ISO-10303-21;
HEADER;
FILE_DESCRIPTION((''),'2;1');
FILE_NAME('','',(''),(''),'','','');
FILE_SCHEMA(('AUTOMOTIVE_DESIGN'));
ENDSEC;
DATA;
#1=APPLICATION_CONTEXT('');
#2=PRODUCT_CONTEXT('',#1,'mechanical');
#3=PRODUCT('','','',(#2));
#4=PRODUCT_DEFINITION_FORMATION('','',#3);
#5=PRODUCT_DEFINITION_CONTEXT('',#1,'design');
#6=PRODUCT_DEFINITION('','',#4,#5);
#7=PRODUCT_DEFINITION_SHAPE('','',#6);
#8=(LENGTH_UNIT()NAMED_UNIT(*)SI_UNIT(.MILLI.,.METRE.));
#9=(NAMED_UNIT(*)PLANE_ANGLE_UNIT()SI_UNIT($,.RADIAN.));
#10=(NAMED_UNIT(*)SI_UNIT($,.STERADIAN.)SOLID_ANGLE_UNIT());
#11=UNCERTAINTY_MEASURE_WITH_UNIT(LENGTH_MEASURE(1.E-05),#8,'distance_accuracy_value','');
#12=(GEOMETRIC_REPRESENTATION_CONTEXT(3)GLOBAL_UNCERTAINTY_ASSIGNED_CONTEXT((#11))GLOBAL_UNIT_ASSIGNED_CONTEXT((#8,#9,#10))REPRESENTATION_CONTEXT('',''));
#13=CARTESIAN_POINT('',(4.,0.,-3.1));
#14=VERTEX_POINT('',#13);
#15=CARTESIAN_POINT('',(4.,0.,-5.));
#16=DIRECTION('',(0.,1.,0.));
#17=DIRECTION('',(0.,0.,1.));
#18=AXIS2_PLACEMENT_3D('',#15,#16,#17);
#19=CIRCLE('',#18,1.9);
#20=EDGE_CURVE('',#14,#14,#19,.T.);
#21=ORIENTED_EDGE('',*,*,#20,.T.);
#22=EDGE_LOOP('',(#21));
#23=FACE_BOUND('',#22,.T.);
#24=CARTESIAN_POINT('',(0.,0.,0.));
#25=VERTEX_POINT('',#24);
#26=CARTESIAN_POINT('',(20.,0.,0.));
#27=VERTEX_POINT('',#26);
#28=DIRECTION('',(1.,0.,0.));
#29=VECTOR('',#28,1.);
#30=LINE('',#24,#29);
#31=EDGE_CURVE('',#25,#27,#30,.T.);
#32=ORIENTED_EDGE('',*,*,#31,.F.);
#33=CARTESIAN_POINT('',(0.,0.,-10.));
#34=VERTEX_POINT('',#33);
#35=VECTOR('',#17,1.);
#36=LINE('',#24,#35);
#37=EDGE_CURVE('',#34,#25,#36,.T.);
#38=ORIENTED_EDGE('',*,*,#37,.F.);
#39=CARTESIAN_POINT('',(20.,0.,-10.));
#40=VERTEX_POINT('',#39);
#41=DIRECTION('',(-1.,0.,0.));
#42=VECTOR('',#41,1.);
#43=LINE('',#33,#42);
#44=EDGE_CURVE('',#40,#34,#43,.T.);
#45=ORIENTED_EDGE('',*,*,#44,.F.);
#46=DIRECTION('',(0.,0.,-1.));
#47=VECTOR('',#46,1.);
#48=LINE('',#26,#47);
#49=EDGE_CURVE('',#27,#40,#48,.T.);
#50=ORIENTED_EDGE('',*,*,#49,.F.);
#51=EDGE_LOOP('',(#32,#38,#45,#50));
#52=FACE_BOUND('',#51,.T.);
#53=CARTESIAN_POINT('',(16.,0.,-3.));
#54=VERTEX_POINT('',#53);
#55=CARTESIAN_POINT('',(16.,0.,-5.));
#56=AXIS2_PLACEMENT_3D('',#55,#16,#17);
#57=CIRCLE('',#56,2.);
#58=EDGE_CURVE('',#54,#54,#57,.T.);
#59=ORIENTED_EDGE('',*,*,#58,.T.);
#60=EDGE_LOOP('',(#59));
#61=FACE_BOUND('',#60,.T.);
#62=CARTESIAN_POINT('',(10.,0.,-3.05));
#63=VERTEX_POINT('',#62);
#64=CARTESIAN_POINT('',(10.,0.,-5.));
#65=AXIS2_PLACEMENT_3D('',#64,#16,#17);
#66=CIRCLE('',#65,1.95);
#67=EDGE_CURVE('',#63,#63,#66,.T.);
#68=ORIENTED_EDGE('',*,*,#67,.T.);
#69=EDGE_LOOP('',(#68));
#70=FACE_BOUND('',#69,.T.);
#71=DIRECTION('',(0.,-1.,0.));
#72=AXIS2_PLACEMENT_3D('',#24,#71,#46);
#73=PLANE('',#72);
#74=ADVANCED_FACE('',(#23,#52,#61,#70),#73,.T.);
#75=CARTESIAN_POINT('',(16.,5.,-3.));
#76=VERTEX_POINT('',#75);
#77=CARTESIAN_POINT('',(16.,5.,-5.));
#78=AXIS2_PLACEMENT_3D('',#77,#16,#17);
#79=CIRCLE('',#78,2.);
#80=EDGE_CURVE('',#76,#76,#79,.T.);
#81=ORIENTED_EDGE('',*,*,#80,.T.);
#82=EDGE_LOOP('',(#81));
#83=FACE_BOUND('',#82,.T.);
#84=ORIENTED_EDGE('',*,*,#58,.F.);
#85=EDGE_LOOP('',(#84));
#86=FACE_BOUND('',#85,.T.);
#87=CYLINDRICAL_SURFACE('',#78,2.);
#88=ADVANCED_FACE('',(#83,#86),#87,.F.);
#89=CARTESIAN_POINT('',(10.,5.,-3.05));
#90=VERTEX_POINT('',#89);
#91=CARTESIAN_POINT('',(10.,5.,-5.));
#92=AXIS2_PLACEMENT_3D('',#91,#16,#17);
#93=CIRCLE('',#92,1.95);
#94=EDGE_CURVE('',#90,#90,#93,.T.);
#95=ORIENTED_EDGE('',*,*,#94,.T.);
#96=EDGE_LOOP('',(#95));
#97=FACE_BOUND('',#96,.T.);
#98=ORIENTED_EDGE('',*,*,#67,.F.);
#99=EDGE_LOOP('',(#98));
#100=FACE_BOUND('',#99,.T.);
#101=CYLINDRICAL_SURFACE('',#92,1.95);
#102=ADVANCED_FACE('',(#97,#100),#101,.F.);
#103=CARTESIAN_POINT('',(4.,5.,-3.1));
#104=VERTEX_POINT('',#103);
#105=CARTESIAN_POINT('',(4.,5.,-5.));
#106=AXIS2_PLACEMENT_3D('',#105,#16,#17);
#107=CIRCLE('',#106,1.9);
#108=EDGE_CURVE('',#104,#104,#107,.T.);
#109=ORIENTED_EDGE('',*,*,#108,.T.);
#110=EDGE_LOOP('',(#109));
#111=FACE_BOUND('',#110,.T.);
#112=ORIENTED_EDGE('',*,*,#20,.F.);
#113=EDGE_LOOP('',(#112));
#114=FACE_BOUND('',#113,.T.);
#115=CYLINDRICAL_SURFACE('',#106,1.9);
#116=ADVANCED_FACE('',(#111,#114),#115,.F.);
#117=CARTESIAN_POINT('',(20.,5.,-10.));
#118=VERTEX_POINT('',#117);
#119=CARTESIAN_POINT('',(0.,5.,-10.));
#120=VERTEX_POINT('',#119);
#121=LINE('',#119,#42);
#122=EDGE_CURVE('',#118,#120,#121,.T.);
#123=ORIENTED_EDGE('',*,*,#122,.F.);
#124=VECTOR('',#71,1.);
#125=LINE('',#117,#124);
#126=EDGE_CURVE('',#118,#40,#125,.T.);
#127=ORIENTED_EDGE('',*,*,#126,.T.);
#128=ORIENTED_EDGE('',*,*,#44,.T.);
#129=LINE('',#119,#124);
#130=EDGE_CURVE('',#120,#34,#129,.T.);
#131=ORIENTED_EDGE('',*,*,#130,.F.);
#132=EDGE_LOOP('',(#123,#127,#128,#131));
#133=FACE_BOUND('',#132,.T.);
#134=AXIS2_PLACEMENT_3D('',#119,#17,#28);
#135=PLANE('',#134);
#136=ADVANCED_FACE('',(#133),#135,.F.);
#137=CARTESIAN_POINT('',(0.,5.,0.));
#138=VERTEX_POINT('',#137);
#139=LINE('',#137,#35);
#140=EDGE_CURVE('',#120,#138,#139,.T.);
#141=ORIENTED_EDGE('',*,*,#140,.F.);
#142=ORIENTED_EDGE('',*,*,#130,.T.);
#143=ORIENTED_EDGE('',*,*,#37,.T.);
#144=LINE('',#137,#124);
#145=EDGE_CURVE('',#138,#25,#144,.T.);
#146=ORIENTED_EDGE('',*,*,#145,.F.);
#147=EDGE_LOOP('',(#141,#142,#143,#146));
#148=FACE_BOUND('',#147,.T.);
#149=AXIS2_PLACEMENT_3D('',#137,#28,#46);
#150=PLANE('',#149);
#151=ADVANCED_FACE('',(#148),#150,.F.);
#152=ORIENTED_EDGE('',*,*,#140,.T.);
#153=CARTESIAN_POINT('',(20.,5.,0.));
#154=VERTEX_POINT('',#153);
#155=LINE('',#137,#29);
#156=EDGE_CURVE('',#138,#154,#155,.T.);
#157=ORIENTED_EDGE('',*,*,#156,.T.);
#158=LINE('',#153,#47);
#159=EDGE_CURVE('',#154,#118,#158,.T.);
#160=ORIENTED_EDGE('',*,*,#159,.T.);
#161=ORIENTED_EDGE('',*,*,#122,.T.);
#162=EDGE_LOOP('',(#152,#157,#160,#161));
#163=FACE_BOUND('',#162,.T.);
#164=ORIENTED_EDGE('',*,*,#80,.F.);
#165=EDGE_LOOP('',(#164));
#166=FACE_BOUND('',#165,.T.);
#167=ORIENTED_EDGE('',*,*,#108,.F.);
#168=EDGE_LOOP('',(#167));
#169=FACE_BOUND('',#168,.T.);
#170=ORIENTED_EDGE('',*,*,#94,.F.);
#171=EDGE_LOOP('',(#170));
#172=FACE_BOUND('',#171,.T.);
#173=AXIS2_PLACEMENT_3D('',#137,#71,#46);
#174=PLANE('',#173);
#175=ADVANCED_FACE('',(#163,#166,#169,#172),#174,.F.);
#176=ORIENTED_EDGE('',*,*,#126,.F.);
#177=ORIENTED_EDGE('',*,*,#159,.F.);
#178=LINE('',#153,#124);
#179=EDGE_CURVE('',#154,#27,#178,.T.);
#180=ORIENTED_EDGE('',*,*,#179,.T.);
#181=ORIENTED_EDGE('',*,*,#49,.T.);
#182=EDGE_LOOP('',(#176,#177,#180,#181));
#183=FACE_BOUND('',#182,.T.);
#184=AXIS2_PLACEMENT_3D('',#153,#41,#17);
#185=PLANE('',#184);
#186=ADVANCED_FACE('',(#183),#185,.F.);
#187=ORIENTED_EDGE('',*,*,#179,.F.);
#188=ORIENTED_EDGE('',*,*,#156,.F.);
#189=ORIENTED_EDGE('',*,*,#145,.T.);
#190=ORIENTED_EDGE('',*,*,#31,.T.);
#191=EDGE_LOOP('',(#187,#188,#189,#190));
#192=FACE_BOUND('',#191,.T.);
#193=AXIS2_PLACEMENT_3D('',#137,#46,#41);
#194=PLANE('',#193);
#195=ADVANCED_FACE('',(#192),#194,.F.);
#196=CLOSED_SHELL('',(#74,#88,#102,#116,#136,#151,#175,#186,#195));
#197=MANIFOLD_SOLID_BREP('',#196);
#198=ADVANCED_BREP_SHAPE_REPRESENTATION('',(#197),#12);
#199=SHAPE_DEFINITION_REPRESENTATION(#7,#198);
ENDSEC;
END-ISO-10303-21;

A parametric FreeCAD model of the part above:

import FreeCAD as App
import Part
import Sketcher

doc = App.newDocument("Part")
body = doc.addObject("PartDesign::Body", "Body")

# Sketch on XZ plane
sketch1 = body.newObject("Sketcher::SketchObject", "Sketch")
sketch1.AttachmentSupport = (doc.getObject("XZ_Plane"), [""])
sketch1.MapMode = "FlatFace"
sketch1.addGeometry([
    Part.LineSegment(App.Vector(0, -10, 0), App.Vector(0, 0, 0)),
    Part.LineSegment(App.Vector(0, 0, 0), App.Vector(20, 0, 0)),
    Part.LineSegment(App.Vector(20, 0, 0), App.Vector(20, -10, 0)),
    Part.LineSegment(App.Vector(20, -10, 0), App.Vector(0, -10, 0)),
], False)
sketch1.addConstraint([
    Sketcher.Constraint("Coincident", 0, 2, 1, 1),
    Sketcher.Constraint("Coincident", 1, 2, 2, 1),
    Sketcher.Constraint("Coincident", 2, 2, 3, 1),
    Sketcher.Constraint("Coincident", 3, 2, 0, 1),
    Sketcher.Constraint("Vertical", 0),
    Sketcher.Constraint("Horizontal", 1),
    Sketcher.Constraint("Vertical", 2),
    Sketcher.Constraint("Horizontal", 3),
    Sketcher.Constraint("Coincident", 0, 2, -1, 1),
    Sketcher.Constraint("DistanceX", 1, 1, 1, 2, 20.0),
    Sketcher.Constraint("DistanceY", 0, 1, 0, 2, 10.0),
])
pad1 = body.newObject("PartDesign::Pad", "Pad")
pad1.Profile = sketch1
pad1.Length = 5
pad1.Reversed = True

# Sketch on XZ plane
sketch2 = body.newObject("Sketcher::SketchObject", "Sketch001")
sketch2.AttachmentSupport = (doc.getObject("XZ_Plane"), [""])
sketch2.MapMode = "FlatFace"
sketch2.AttachmentOffset = App.Placement(App.Vector(0, 0, -5), App.Rotation())
sketch2.addGeometry(Part.Circle(App.Vector(4, -5, 0), App.Vector(0, 0, 1), 1.9), False)
sketch2.addConstraint([
    Sketcher.Constraint("Diameter", 0, 3.8),
    Sketcher.Constraint("DistanceX", -1, 1, 0, 3, 4.0),
    Sketcher.Constraint("DistanceY", 0, 3, -1, 1, 5.0),
])
doc.recompute()
hole = body.newObject("PartDesign::Hole", "Hole")
hole.Profile = sketch2
hole.ThreadType = "None"
hole.Diameter = 3.8
hole.DepthType = "ThroughAll"
hole.Reversed = True

# Sketch on XZ plane
sketch3 = body.newObject("Sketcher::SketchObject", "Sketch002")
sketch3.AttachmentSupport = (doc.getObject("XZ_Plane"), [""])
sketch3.MapMode = "FlatFace"
sketch3.AttachmentOffset = App.Placement(App.Vector(0, 0, -5), App.Rotation())
sketch3.addGeometry(Part.Circle(App.Vector(10, -5, 0), App.Vector(0, 0, 1), 1.9), False)
sketch3.addConstraint([
    Sketcher.Constraint("Diameter", 0, 3.9),
    Sketcher.Constraint("DistanceX", -1, 1, 0, 3, 10.0),
    Sketcher.Constraint("DistanceY", 0, 3, -1, 1, 5.0),
])
doc.recompute()
hole2 = body.newObject("PartDesign::Hole", "Hole001")
hole2.Profile = sketch3
hole2.ThreadType = "None"
hole2.Diameter = 3.9
hole2.DepthType = "ThroughAll"
hole2.Reversed = True

# Sketch on XZ plane
sketch4 = body.newObject("Sketcher::SketchObject", "Sketch003")
sketch4.AttachmentSupport = (doc.getObject("XZ_Plane"), [""])
sketch4.MapMode = "FlatFace"
sketch4.AttachmentOffset = App.Placement(App.Vector(0, 0, -5), App.Rotation())
sketch4.addGeometry(Part.Circle(App.Vector(16, -5, 0), App.Vector(0, 0, 1), 2), False)
sketch4.addConstraint([
    Sketcher.Constraint("Diameter", 0, 4.0),
    Sketcher.Constraint("DistanceX", -1, 1, 0, 3, 16.0),
    Sketcher.Constraint("DistanceY", 0, 3, -1, 1, 5.0),
])
doc.recompute()
hole3 = body.newObject("PartDesign::Hole", "Hole002")
hole3.Profile = sketch4
hole3.ThreadType = "None"
hole3.Diameter = 4
hole3.DepthType = "ThroughAll"
hole3.Reversed = True

doc.recompute()
